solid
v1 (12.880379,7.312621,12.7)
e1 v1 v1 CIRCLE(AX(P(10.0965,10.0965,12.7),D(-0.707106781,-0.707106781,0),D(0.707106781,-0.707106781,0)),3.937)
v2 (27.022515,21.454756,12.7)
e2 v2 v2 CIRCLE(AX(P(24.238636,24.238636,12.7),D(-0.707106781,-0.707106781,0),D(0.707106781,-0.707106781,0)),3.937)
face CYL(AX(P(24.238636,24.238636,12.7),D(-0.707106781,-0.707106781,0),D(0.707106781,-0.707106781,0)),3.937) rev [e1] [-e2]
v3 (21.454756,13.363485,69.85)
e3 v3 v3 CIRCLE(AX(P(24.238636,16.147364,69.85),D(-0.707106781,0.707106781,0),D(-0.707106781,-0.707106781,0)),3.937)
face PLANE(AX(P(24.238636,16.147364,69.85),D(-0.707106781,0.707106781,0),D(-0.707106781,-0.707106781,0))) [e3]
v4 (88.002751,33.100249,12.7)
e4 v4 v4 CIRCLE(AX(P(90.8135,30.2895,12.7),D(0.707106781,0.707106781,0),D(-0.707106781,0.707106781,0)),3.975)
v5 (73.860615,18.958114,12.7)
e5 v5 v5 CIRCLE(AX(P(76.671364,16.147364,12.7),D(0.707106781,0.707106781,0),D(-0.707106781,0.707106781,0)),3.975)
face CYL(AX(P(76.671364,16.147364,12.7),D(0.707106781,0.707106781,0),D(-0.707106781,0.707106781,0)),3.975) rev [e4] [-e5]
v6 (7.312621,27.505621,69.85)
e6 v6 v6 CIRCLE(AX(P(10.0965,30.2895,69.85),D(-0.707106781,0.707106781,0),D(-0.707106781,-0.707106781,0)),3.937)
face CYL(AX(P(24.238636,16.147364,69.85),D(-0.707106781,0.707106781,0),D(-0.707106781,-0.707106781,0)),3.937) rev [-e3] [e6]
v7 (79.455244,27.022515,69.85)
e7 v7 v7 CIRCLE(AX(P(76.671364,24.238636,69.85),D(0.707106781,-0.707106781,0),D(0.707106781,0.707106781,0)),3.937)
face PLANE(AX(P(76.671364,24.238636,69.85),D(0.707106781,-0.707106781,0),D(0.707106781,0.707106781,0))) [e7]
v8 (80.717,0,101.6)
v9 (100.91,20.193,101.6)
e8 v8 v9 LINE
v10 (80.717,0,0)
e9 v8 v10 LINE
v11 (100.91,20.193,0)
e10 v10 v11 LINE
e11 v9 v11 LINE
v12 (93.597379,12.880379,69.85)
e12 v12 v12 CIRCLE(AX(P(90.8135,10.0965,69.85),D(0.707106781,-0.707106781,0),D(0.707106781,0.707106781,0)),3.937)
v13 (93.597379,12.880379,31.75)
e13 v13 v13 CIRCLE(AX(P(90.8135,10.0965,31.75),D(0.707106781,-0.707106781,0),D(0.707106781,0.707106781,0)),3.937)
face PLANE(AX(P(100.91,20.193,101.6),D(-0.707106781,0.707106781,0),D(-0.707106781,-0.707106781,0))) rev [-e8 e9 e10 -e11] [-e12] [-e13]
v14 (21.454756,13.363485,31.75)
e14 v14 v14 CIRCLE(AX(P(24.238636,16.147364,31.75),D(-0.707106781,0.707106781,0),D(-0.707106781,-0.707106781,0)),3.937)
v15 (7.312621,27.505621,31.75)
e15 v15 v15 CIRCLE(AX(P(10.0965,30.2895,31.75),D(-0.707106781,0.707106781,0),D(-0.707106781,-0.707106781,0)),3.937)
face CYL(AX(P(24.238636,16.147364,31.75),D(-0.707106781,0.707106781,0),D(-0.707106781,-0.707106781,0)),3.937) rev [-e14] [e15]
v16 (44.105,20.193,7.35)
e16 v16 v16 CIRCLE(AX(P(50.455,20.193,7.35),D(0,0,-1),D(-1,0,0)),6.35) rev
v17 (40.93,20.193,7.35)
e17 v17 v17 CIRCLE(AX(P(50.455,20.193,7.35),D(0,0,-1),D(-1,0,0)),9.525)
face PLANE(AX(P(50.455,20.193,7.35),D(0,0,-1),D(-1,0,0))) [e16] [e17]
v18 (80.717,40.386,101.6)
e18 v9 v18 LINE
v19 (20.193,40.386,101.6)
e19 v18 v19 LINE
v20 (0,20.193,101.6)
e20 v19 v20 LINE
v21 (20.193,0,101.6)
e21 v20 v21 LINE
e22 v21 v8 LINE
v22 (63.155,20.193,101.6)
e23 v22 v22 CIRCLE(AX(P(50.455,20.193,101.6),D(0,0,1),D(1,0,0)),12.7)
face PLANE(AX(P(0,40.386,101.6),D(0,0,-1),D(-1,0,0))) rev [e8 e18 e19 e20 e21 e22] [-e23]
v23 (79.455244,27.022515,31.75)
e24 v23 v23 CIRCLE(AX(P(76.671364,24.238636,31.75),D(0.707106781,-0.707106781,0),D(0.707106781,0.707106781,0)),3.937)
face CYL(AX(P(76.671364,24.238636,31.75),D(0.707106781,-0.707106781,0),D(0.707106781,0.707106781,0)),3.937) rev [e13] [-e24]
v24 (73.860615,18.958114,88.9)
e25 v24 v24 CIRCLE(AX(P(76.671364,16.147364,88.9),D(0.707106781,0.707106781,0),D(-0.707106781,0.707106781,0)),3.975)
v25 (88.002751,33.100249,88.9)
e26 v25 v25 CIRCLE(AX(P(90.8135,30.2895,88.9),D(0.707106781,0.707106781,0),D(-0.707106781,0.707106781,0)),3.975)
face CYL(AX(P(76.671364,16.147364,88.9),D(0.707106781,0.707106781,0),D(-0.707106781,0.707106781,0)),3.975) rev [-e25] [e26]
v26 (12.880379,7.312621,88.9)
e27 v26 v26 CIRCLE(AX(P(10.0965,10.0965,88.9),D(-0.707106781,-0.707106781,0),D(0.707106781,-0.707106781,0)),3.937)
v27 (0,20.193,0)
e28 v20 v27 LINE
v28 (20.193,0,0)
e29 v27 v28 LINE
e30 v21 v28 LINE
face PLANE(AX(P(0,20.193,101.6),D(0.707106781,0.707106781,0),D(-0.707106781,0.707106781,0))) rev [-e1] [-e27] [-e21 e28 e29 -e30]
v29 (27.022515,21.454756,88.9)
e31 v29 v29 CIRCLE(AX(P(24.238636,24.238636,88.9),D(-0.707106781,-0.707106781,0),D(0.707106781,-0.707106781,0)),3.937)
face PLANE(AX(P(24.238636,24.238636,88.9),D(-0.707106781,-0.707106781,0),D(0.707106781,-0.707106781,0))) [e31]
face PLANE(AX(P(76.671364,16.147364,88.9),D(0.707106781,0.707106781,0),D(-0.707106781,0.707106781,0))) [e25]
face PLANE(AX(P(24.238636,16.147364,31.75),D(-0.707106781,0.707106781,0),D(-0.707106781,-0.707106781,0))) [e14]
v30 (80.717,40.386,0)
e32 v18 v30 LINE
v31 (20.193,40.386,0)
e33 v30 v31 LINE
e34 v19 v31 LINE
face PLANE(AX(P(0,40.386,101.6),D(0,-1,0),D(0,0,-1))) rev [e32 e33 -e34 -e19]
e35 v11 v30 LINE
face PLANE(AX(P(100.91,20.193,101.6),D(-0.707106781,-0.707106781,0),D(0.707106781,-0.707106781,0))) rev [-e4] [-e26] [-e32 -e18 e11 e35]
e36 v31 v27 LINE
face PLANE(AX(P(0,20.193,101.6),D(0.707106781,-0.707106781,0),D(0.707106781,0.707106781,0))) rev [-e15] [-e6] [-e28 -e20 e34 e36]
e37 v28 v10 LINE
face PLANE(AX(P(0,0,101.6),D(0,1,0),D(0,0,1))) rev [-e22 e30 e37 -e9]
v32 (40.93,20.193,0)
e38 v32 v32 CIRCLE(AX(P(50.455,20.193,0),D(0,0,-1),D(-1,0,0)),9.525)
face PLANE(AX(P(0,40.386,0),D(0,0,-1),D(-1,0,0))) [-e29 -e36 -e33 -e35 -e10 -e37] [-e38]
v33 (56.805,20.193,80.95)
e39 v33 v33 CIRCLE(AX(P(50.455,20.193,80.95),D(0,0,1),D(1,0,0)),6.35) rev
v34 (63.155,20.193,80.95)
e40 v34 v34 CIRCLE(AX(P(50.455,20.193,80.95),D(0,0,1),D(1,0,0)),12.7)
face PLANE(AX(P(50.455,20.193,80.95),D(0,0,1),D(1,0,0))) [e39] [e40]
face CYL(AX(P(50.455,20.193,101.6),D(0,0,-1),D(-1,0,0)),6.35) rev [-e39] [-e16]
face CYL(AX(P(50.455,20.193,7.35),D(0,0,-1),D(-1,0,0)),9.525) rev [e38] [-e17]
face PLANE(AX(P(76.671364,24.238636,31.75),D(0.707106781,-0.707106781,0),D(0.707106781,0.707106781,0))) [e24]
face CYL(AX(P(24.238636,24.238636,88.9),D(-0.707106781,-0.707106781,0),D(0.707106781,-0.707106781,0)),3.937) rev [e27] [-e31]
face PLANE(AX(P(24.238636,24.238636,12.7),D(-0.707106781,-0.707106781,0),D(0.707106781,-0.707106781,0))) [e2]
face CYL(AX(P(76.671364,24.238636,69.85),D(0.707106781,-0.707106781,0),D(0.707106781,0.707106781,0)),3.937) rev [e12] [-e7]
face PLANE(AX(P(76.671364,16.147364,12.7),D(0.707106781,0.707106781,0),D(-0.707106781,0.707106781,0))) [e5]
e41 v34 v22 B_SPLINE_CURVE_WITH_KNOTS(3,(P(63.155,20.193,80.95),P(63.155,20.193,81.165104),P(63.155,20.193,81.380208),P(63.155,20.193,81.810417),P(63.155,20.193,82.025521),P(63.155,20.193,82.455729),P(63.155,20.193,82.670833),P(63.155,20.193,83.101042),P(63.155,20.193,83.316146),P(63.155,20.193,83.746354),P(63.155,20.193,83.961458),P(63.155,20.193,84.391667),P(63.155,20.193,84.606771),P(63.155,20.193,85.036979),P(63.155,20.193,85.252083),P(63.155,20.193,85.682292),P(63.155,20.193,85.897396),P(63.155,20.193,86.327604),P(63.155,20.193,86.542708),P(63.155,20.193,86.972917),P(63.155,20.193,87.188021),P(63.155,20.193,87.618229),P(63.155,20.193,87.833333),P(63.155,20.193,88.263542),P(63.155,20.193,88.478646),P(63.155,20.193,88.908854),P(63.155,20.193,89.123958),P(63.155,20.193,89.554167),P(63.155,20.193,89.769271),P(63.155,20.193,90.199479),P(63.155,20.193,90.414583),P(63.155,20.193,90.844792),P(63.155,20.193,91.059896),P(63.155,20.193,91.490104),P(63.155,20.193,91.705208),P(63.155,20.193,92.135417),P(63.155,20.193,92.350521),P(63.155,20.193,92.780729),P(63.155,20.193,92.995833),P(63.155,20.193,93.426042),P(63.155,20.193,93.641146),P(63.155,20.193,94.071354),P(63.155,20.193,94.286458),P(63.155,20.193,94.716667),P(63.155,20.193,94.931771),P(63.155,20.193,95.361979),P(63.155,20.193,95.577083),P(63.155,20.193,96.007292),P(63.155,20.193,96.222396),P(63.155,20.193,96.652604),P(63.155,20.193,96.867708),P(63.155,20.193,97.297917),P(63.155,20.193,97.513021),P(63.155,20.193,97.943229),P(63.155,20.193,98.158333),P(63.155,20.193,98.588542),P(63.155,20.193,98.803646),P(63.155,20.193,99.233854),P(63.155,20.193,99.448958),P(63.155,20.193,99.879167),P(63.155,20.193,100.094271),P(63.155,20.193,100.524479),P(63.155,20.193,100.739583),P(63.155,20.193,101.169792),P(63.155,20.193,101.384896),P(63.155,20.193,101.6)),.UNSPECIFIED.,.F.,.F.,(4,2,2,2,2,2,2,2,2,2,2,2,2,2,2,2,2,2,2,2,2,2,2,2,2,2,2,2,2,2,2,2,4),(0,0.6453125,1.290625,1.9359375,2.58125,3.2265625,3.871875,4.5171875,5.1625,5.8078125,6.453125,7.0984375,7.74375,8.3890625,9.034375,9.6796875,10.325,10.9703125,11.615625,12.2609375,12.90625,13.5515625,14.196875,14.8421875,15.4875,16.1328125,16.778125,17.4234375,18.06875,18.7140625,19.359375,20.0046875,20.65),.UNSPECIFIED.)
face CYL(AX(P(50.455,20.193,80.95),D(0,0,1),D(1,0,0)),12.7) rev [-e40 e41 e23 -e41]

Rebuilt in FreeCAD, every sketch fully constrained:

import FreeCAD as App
import Part
import Sketcher
Q = App.Units.Quantity

doc = App.newDocument("Part")
body = doc.addObject("PartDesign::Body", "Body")

sketch1 = body.newObject("Sketcher::SketchObject", "Sketch")
sketch1.AttachmentSupport = (doc.getObject("XY_Plane"), [""])
sketch1.MapMode = "FlatFace"
sketch1.addGeometry(Part.LineSegment(App.Vector(0, 40, 0), App.Vector(0, 0, 0)), False)
sketch1.addGeometry(Part.LineSegment(App.Vector(0, 0, 0), App.Vector(101, 0, 0)), False)
sketch1.addGeometry(Part.LineSegment(App.Vector(101, 0, 0), App.Vector(101, 40, 0)), False)
sketch1.addGeometry(Part.LineSegment(App.Vector(101, 40, 0), App.Vector(0, 40, 0)), False)
sketch1.addConstraint(Sketcher.Constraint("Coincident", 0, 2, 1, 1))
sketch1.addConstraint(Sketcher.Constraint("Coincident", 1, 2, 2, 1))
sketch1.addConstraint(Sketcher.Constraint("Coincident", 2, 2, 3, 1))
sketch1.addConstraint(Sketcher.Constraint("Coincident", 3, 2, 0, 1))
sketch1.addConstraint(Sketcher.Constraint("Vertical", 0))
sketch1.addConstraint(Sketcher.Constraint("Horizontal", 1))
sketch1.addConstraint(Sketcher.Constraint("Vertical", 2))
sketch1.addConstraint(Sketcher.Constraint("Horizontal", 3))
sketch1.addConstraint(Sketcher.Constraint("Coincident", 0, 2, -1, 1))
sketch1.addConstraint(Sketcher.Constraint("DistanceY", 0, 2, 0, 1, Q("1.59 in")))
sketch1.addConstraint(Sketcher.Constraint("DistanceX", 1, 1, 1, 2, 100.91))
pad1 = body.newObject("PartDesign::Pad", "Pad")
pad1.Profile = sketch1
pad1.Length = Q("4 in")

sketch2 = body.newObject("Sketcher::SketchObject", "Sketch001")
sketch2.AttachmentSupport = (doc.getObject("XY_Plane"), [""])
sketch2.MapMode = "FlatFace"
sketch2.addGeometry(Part.LineSegment(App.Vector(81, 0, 0), App.Vector(101, 20, 0)), False)
sketch2.addGeometry(Part.LineSegment(App.Vector(101, 20, 0), App.Vector(101, 0, 0)), False)
sketch2.addGeometry(Part.LineSegment(App.Vector(101, 0, 0), App.Vector(81, 0, 0)), False)
sketch2.addGeometry(Part.LineSegment(App.Vector(0, 0, 0), App.Vector(0, 20, 0)), False)
sketch2.addGeometry(Part.LineSegment(App.Vector(0, 20, 0), App.Vector(20, 0, 0)), False)
sketch2.addGeometry(Part.LineSegment(App.Vector(20, 0, 0), App.Vector(0, 0, 0)), False)
sketch2.addConstraint(Sketcher.Constraint("Coincident", 0, 2, 1, 1))
sketch2.addConstraint(Sketcher.Constraint("Coincident", 1, 2, 2, 1))
sketch2.addConstraint(Sketcher.Constraint("Coincident", 2, 2, 0, 1))
sketch2.addConstraint(Sketcher.Constraint("Coincident", 3, 2, 4, 1))
sketch2.addConstraint(Sketcher.Constraint("Coincident", 4, 2, 5, 1))
sketch2.addConstraint(Sketcher.Constraint("Coincident", 5, 2, 3, 1))
sketch2.addConstraint(Sketcher.Constraint("Vertical", 1))
sketch2.addConstraint(Sketcher.Constraint("Horizontal", 2))
sketch2.addConstraint(Sketcher.Constraint("Vertical", 3))
sketch2.addConstraint(Sketcher.Constraint("Horizontal", 5))
sketch2.addConstraint(Sketcher.Constraint("Coincident", 5, 2, -1, 1))
sketch2.addConstraint(Sketcher.Constraint("PointOnObject", 1, 2, -1))
sketch2.addConstraint(Sketcher.Constraint("Perpendicular", 0, 4))
sketch2.addConstraint(Sketcher.Constraint("Horizontal", 0, 2, 3, 2))
sketch2.addConstraint(Sketcher.Constraint("Equal", 2, 5))
sketch2.addConstraint(Sketcher.Constraint("DistanceX", 2, 2, 2, 1, Q("0.795 in")))
sketch2.addConstraint(Sketcher.Constraint("DistanceX", -1, 1, 0, 2, 100.91))
pocket1 = body.newObject("PartDesign::Pocket", "Pocket")
pocket1.Profile = sketch2
pocket1.Length = Q("4 in")
pocket1.Reversed = True

sketch3 = body.newObject("Sketcher::SketchObject", "Sketch002")
sketch3.AttachmentSupport = (doc.getObject("XY_Plane"), [""])
sketch3.MapMode = "FlatFace"
sketch3.addGeometry(Part.LineSegment(App.Vector(101, 20, 0), App.Vector(81, 40, 0)), False)
sketch3.addGeometry(Part.LineSegment(App.Vector(81, 40, 0), App.Vector(101, 40, 0)), False)
sketch3.addGeometry(Part.LineSegment(App.Vector(101, 40, 0), App.Vector(101, 20, 0)), False)
sketch3.addGeometry(Part.LineSegment(App.Vector(0, 20, 0), App.Vector(0, 40, 0)), False)
sketch3.addGeometry(Part.LineSegment(App.Vector(0, 40, 0), App.Vector(20, 40, 0)), False)
sketch3.addGeometry(Part.LineSegment(App.Vector(20, 40, 0), App.Vector(0, 20, 0)), False)
sketch3.addConstraint(Sketcher.Constraint("Coincident", 0, 2, 1, 1))
sketch3.addConstraint(Sketcher.Constraint("Coincident", 1, 2, 2, 1))
sketch3.addConstraint(Sketcher.Constraint("Coincident", 2, 2, 0, 1))
sketch3.addConstraint(Sketcher.Constraint("Coincident", 3, 2, 4, 1))
sketch3.addConstraint(Sketcher.Constraint("Coincident", 4, 2, 5, 1))
sketch3.addConstraint(Sketcher.Constraint("Coincident", 5, 2, 3, 1))
sketch3.addConstraint(Sketcher.Constraint("Horizontal", 1))
sketch3.addConstraint(Sketcher.Constraint("Vertical", 2))
sketch3.addConstraint(Sketcher.Constraint("Vertical", 3))
sketch3.addConstraint(Sketcher.Constraint("Horizontal", 4))
sketch3.addConstraint(Sketcher.Constraint("PointOnObject", 3, 2, -2))
sketch3.addConstraint(Sketcher.Constraint("Perpendicular", 0, 5))
sketch3.addConstraint(Sketcher.Constraint("Horizontal", 1, 2, 3, 2))
sketch3.addConstraint(Sketcher.Constraint("Horizontal", 2, 2, 5, 2))
sketch3.addConstraint(Sketcher.Constraint("Equal", 1, 4))
sketch3.addConstraint(Sketcher.Constraint("DistanceX", 1, 1, 1, 2, Q("0.795 in")))
sketch3.addConstraint(Sketcher.Constraint("DistanceY", -1, 1, 0, 2, Q("1.59 in")))
sketch3.addConstraint(Sketcher.Constraint("DistanceX", -1, 1, 0, 2, 80.717))
pocket2 = body.newObject("PartDesign::Pocket", "Pocket001")
pocket2.Profile = sketch3
pocket2.Type = "ThroughAll"
pocket2.Reversed = True

sketch4 = body.newObject("Sketcher::SketchObject", "Sketch003")
sketch4.Placement = App.Placement(App.Vector(60.5515, 60.5515, 0), App.Rotation(App.Vector(0, 0, -1), App.Vector(-0.707106781, 0.707106781, 0), App.Vector(0.707106781, 0.707106781, 0), "ZXY"))
sketch4.addGeometry(Part.Circle(App.Vector(-88.9, -42.8, 0), App.Vector(0, 0, 1), 4), False)
sketch4.addGeometry(Part.Circle(App.Vector(-12.7, -42.8, 0), App.Vector(0, 0, 1), 4), False)
sketch4.addConstraint(Sketcher.Constraint("Equal", 0, 1))
sketch4.addConstraint(Sketcher.Constraint("Horizontal", 0, 3, 1, 3))
sketch4.addConstraint(Sketcher.Constraint("DistanceX", 0, 3, 1, 3, Q("3 in")))
sketch4.addConstraint(Sketcher.Constraint("DistanceX", 0, 3, -1, 1, Q("3.5 in")))
sketch4.addConstraint(Sketcher.Constraint("Diameter", 0, 7.95))
sketch4.addConstraint(Sketcher.Constraint("DistanceY", 0, 3, -1, 1, 42.796931))
pocket3 = body.newObject("PartDesign::Pocket", "Pocket002")
pocket3.Profile = sketch4
pocket3.Length = 20

sketch5 = body.newObject("Sketcher::SketchObject", "Sketch004")
sketch5.Placement = App.Placement(App.Vector(10.0965, 10.0965, 0), App.Rotation(App.Vector(0, 0, 1), App.Vector(-0.707106781, 0.707106781, 0), App.Vector(-0.707106781, -0.707106781, 0), "ZXY"))
sketch5.addGeometry(Part.Circle(App.Vector(12.7, 0, 0), App.Vector(0, 0, 1), 3.9), False)
sketch5.addGeometry(Part.Circle(App.Vector(88.9, 0, 0), App.Vector(0, 0, 1), 3.9), False)
sketch5.addConstraint(Sketcher.Constraint("Equal", 0, 1))
sketch5.addConstraint(Sketcher.Constraint("PointOnObject", 0, 3, -1))
sketch5.addConstraint(Sketcher.Constraint("PointOnObject", 1, 3, -1))
sketch5.addConstraint(Sketcher.Constraint("Diameter", 0, Q("0.31 in")))
sketch5.addConstraint(Sketcher.Constraint("DistanceX", 0, 3, 1, 3, Q("3 in")))
sketch5.addConstraint(Sketcher.Constraint("DistanceX", -1, 1, 0, 3, Q("0.5 in")))
pocket4 = body.newObject("PartDesign::Pocket", "Pocket003")
pocket4.Profile = sketch5
pocket4.Length = 20

sketch6 = body.newObject("Sketcher::SketchObject", "Sketch005")
sketch6.Placement = App.Placement(App.Vector(-10.0965, 10.0965, 0), App.Rotation(App.Vector(0, 0, 1), App.Vector(0.707106781, 0.707106781, 0), App.Vector(-0.707106781, 0.707106781, 0), "ZXY"))
sketch6.addGeometry(Part.Circle(App.Vector(31.8, 28.6, 0), App.Vector(0, 0, 1), 3.9), False)
sketch6.addGeometry(Part.Circle(App.Vector(69.8, 28.6, 0), App.Vector(0, 0, 1), 3.9), False)
sketch6.addConstraint(Sketcher.Constraint("Equal", 0, 1))
sketch6.addConstraint(Sketcher.Constraint("Horizontal", 0, 3, 1, 3))
sketch6.addConstraint(Sketcher.Constraint("Diameter", 0, Q("0.31 in")))
sketch6.addConstraint(Sketcher.Constraint("DistanceX", 0, 3, 1, 3, Q("1.5 in")))
sketch6.addConstraint(Sketcher.Constraint("DistanceX", -1, 1, 0, 3, Q("1.25 in")))
sketch6.addConstraint(Sketcher.Constraint("DistanceY", -1, 1, 0, 3, 28.557214))
pocket5 = body.newObject("PartDesign::Pocket", "Pocket004")
pocket5.Profile = sketch6
pocket5.Length = 20

sketch7 = body.newObject("Sketcher::SketchObject", "Sketch006")
sketch7.Placement = App.Placement(App.Vector(40.3585, -40.3585, 0), App.Rotation(App.Vector(0, 0, -1), App.Vector(0.707106781, 0.707106781, 0), App.Vector(0.707106781, -0.707106781, 0), "ZXY"))
sketch7.addGeometry(Part.Circle(App.Vector(-69.8, 71.4, 0), App.Vector(0, 0, 1), 3.9), False)
sketch7.addGeometry(Part.Circle(App.Vector(-31.8, 71.4, 0), App.Vector(0, 0, 1), 3.9), False)
sketch7.addConstraint(Sketcher.Constraint("Equal", 0, 1))
sketch7.addConstraint(Sketcher.Constraint("Horizontal", 0, 3, 1, 3))
sketch7.addConstraint(Sketcher.Constraint("Diameter", 0, Q("0.31 in")))
sketch7.addConstraint(Sketcher.Constraint("DistanceX", 0, 3, 1, 3, Q("1.5 in")))
sketch7.addConstraint(Sketcher.Constraint("DistanceX", 0, 3, -1, 1, Q("2.75 in")))
sketch7.addConstraint(Sketcher.Constraint("DistanceY", -1, 1, 0, 3, 71.354145))
pocket6 = body.newObject("PartDesign::Pocket", "Pocket005")
pocket6.Profile = sketch7
pocket6.Length = 20

sketch8 = body.newObject("Sketcher::SketchObject", "Sketch007")
sketch8.AttachmentSupport = (doc.getObject("XY_Plane"), [""])
sketch8.MapMode = "FlatFace"
sketch8.addGeometry(Part.Circle(App.Vector(50, 20, 0), App.Vector(0, 0, 1), 6), False)
sketch8.addConstraint(Sketcher.Constraint("Diameter", 0, Q("0.5 in")))
sketch8.addConstraint(Sketcher.Constraint("DistanceY", -1, 1, 0, 3, Q("0.795 in")))
sketch8.addConstraint(Sketcher.Constraint("DistanceX", -1, 1, 0, 3, 50.455))
pocket7 = body.newObject("PartDesign::Pocket", "Pocket006")
pocket7.Profile = sketch8
pocket7.Type = "ThroughAll"
pocket7.Reversed = True

sketch9 = body.newObject("Sketcher::SketchObject", "Sketch008")
sketch9.AttachmentSupport = (doc.getObject("XY_Plane"), [""])
sketch9.MapMode = "FlatFace"
sketch9.addGeometry(Part.Circle(App.Vector(50, 20, 0), App.Vector(0, 0, 1), 10), False)
sketch9.addConstraint(Sketcher.Constraint("Diameter", 0, Q("0.75 in")))
sketch9.addConstraint(Sketcher.Constraint("DistanceY", -1, 1, 0, 3, Q("0.795 in")))
sketch9.addConstraint(Sketcher.Constraint("DistanceX", -1, 1, 0, 3, 50.455))
pocket8 = body.newObject("PartDesign::Pocket", "Pocket007")
pocket8.Profile = sketch9
pocket8.Length = 7.35
pocket8.Reversed = True

sketch10 = body.newObject("Sketcher::SketchObject", "Sketch009")
sketch10.AttachmentSupport = (doc.getObject("XY_Plane"), [""])
sketch10.MapMode = "FlatFace"
sketch10.AttachmentOffset = App.Placement(App.Vector(0, 0, 4 * 25.4), App.Rotation())
sketch10.addGeometry(Part.Circle(App.Vector(50, 20, 0), App.Vector(0, 0, 1), 13), False)
sketch10.addConstraint(Sketcher.Constraint("Diameter", 0, Q("1 in")))
sketch10.addConstraint(Sketcher.Constraint("DistanceY", -1, 1, 0, 3, Q("0.795 in")))
sketch10.addConstraint(Sketcher.Constraint("DistanceX", -1, 1, 0, 3, 50.455))
pocket9 = body.newObject("PartDesign::Pocket", "Pocket008")
pocket9.Profile = sketch10
pocket9.Length = 20.65

doc.recompute()
